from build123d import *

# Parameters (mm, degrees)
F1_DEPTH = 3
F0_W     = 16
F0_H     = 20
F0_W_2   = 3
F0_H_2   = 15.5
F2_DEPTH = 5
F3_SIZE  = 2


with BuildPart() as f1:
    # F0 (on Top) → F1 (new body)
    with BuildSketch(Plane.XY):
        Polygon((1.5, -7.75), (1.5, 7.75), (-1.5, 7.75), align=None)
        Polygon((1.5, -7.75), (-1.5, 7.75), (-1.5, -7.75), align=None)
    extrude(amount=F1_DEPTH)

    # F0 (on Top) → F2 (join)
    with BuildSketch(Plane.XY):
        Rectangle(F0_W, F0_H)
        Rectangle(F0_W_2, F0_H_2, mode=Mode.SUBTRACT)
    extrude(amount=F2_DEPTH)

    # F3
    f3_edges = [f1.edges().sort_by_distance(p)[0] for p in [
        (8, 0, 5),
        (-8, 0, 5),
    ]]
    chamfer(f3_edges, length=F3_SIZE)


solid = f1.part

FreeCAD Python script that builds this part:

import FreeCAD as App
import Part
import Sketcher


def edges_at(feature, points):
    """Names of the edges that pass closest to the given points."""
    edges = feature.Shape.Edges
    near = lambda p: min(range(len(edges)), key=lambda i: edges[i].distToShape(Part.Vertex(*p))[0])
    return sorted({f"Edge{near(p) + 1}" for p in points})


def add_polygon(sketch, points):
    """Adds a closed chain of lines whose ends are joined by coincident constraints."""
    first, n = sketch.GeometryCount, len(points)
    for a, b in zip(points, points[1:] + points[:1]):
        sketch.addGeometry(Part.LineSegment(App.Vector(*a, 0), App.Vector(*b, 0)), False)
    for i in range(n):
        sketch.addConstraint(Sketcher.Constraint("Coincident", first + i, 2, first + (i + 1) % n, 1))

doc = App.newDocument("Part")
body = doc.addObject("PartDesign::Body", "Body")

sketch1 = body.newObject("Sketcher::SketchObject", "Sketch")
sketch1.AttachmentSupport = (doc.getObject("XY_Plane"), [""])
sketch1.MapMode = "FlatFace"
add_polygon(sketch1, [(1.5, -7.8), (1.5, 7.8), (-1.5, 7.8), (-1.5, -7.8)])
sketch1.addConstraint(Sketcher.Constraint("Vertical", 0))
sketch1.addConstraint(Sketcher.Constraint("Horizontal", 1))
sketch1.addConstraint(Sketcher.Constraint("Vertical", 2))
sketch1.addConstraint(Sketcher.Constraint("Horizontal", 3))
sketch1.addConstraint(Sketcher.Constraint("Symmetric", 0, 2, 2, 2, -1, 1))
sketch1.addConstraint(Sketcher.Constraint("DistanceX", 1, 2, 1, 1, 3.0))
sketch1.addConstraint(Sketcher.Constraint("DistanceY", 0, 1, 0, 2, 15.5))
pad1 = body.newObject("PartDesign::Pad", "Pad")
pad1.Profile = sketch1
pad1.Length = 3

sketch2 = body.newObject("Sketcher::SketchObject", "Sketch001")
sketch2.AttachmentSupport = (doc.getObject("XY_Plane"), [""])
sketch2.MapMode = "FlatFace"
add_polygon(sketch2, [(-8, 10), (-8, -10), (8, -10), (8, 10)])
add_polygon(sketch2, [(1.5, -7.8), (-1.5, -7.8), (-1.5, 7.8), (1.5, 7.8)])
sketch2.addConstraint(Sketcher.Constraint("Vertical", 0))
sketch2.addConstraint(Sketcher.Constraint("Horizontal", 1))
sketch2.addConstraint(Sketcher.Constraint("Vertical", 2))
sketch2.addConstraint(Sketcher.Constraint("Horizontal", 3))
sketch2.addConstraint(Sketcher.Constraint("Horizontal", 4))
sketch2.addConstraint(Sketcher.Constraint("Vertical", 5))
sketch2.addConstraint(Sketcher.Constraint("Horizontal", 6))
sketch2.addConstraint(Sketcher.Constraint("Vertical", 7))
sketch2.addConstraint(Sketcher.Constraint("Symmetric", 0, 2, 2, 2, -1, 1))
sketch2.addConstraint(Sketcher.Constraint("Symmetric", 4, 2, 6, 2, -1, 1))
sketch2.addConstraint(Sketcher.Constraint("DistanceX", 1, 1, 1, 2, 16.0))
sketch2.addConstraint(Sketcher.Constraint("DistanceX", 4, 2, 4, 1, 3.0))
sketch2.addConstraint(Sketcher.Constraint("DistanceY", 0, 2, 0, 1, 20.0))
sketch2.addConstraint(Sketcher.Constraint("DistanceY", 5, 1, 5, 2, 15.5))
pad2 = body.newObject("PartDesign::Pad", "Pad001")
pad2.Profile = sketch2
pad2.Length = 5
doc.recompute()

chamfer = body.newObject("PartDesign::Chamfer", "Chamfer")
chamfer.Base = (pad2, edges_at(pad2, [(8, 0, 5), (-8, 0, 5)]))
chamfer.Size = 2

doc.recompute()
